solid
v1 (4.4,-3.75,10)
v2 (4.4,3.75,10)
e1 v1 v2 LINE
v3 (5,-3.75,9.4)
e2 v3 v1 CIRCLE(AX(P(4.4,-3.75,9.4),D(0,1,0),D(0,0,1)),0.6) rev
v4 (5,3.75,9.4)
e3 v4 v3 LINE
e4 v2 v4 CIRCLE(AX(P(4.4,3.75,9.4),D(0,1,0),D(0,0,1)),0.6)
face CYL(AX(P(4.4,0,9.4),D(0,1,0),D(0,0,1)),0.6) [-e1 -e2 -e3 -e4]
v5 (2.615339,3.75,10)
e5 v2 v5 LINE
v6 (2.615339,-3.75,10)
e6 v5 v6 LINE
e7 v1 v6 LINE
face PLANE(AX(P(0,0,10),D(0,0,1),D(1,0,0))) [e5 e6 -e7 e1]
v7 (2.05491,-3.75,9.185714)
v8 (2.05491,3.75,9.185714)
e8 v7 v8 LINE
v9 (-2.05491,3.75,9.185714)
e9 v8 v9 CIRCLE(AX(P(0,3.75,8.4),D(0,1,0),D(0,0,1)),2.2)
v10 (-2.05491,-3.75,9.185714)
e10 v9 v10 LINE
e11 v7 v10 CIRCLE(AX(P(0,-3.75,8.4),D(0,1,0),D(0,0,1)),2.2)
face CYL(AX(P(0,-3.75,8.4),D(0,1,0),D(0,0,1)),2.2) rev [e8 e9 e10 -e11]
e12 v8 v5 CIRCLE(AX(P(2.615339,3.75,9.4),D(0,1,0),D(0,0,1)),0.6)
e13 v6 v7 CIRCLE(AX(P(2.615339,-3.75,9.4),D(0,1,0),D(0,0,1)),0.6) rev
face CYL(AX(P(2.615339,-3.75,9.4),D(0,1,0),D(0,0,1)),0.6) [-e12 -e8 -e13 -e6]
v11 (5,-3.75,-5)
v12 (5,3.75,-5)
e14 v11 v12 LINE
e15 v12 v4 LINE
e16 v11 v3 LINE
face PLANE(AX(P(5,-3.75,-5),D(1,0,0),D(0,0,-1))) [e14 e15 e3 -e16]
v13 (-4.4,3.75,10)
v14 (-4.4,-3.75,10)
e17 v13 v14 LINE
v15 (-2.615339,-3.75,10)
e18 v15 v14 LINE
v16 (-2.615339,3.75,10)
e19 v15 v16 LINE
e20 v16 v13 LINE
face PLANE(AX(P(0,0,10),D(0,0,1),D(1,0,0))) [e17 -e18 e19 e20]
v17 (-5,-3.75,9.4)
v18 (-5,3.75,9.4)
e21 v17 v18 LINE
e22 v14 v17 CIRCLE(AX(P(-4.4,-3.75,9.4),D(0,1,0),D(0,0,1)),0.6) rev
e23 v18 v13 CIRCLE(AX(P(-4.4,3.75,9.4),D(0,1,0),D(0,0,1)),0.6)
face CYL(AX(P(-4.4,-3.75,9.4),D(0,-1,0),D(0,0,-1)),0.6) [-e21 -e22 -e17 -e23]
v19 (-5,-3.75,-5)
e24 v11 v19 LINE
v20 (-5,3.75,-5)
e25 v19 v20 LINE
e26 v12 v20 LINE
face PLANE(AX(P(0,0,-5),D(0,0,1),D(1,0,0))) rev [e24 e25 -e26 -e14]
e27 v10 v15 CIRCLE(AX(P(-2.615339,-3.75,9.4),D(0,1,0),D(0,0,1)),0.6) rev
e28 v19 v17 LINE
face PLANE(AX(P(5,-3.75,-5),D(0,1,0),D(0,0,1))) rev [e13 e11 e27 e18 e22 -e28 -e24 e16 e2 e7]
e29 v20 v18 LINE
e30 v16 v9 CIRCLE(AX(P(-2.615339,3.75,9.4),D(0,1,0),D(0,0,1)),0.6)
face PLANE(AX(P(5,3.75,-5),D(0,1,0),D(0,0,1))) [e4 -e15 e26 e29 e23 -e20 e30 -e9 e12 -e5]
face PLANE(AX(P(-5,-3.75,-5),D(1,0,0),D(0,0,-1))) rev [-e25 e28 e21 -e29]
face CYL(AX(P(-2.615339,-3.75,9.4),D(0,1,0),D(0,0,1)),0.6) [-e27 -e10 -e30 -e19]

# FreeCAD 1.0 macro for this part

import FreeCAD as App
import Part
import Sketcher

V = App.Vector
Q = App.Units.Quantity


def edges_at(feature, points):
    """Names of the edges that pass closest to the given points."""
    edges = feature.Shape.Edges
    near = lambda p: min(range(len(edges)), key=lambda i: edges[i].distToShape(Part.Vertex(*p))[0])
    return sorted({f"Edge{near(p) + 1}" for p in points})


def add_polygon(sketch, points):
    """Adds a closed chain of lines whose ends are joined by coincident constraints."""
    first, n = sketch.GeometryCount, len(points)
    for a, b in zip(points, points[1:] + points[:1]):
        sketch.addGeometry(Part.LineSegment(App.Vector(*a, 0), App.Vector(*b, 0)), False)
    for i in range(n):
        sketch.addConstraint(Sketcher.Constraint("Coincident", first + i, 2, first + (i + 1) % n, 1))

doc = App.newDocument("Part")
body = doc.addObject("PartDesign::Body", "Body")

# Sketch on XY plane
sketch1 = body.newObject("Sketcher::SketchObject", "Sketch")
sketch1.AttachmentSupport = (doc.getObject("XY_Plane"), [""])
sketch1.MapMode = "FlatFace"
add_polygon(sketch1, [(-5, -4), (5, -4), (5, 4), (-5, 4)])  # lines 0-3
sketch1.addConstraint([
    Sketcher.Constraint("Horizontal", 0),
    Sketcher.Constraint("Vertical", 1),
    Sketcher.Constraint("Horizontal", 2),
    Sketcher.Constraint("Vertical", 3),
    Sketcher.Constraint("Symmetric", 0, 2, 2, 2, -1, 1),
    Sketcher.Constraint("DistanceX", 0, 1, 0, 2, Q("10 mm")),
    Sketcher.Constraint("DistanceY", 1, 1, 1, 2, Q("7.5 mm")),
])
pad1 = body.newObject("PartDesign::Pad", "Pad")
pad1.Profile = sketch1
pad1.Type = "TwoLengths"
pad1.Length = 10
pad1.Length2 = 5

# Sketch on XZ plane
sketch2 = body.newObject("Sketcher::SketchObject", "Sketch001")
sketch2.AttachmentSupport = (doc.getObject("XZ_Plane"), [""])
sketch2.MapMode = "FlatFace"
sketch2.AttachmentOffset = App.Placement(V(0, 0, -3.75), App.Rotation())
sketch2.addGeometry(Part.Circle(V(0, 8.4, 0), V(0, 0, 1), 2.2), False)
sketch2.addConstraint([
    Sketcher.Constraint("PointOnObject", 0, 3, -2),
    Sketcher.Constraint("Diameter", 0, Q("4.4 mm")),
    Sketcher.Constraint("DistanceY", -1, 1, 0, 3, Q("8.4 mm")),
])
pocket1 = body.newObject("PartDesign::Pocket", "Pocket")
pocket1.Profile = sketch2
pocket1.Type = "ThroughAll"
pocket1.Reversed = True
doc.recompute()

fillet = body.newObject("PartDesign::Fillet", "Fillet")
fillet.Base = (pocket1, edges_at(pocket1, [
    (-5, 0, 10),
    (5, 0, 10),
    (-1.51, 0, 10),
    (1.51, 0, 10),
]))
fillet.Radius = 0.6

doc.recompute()
